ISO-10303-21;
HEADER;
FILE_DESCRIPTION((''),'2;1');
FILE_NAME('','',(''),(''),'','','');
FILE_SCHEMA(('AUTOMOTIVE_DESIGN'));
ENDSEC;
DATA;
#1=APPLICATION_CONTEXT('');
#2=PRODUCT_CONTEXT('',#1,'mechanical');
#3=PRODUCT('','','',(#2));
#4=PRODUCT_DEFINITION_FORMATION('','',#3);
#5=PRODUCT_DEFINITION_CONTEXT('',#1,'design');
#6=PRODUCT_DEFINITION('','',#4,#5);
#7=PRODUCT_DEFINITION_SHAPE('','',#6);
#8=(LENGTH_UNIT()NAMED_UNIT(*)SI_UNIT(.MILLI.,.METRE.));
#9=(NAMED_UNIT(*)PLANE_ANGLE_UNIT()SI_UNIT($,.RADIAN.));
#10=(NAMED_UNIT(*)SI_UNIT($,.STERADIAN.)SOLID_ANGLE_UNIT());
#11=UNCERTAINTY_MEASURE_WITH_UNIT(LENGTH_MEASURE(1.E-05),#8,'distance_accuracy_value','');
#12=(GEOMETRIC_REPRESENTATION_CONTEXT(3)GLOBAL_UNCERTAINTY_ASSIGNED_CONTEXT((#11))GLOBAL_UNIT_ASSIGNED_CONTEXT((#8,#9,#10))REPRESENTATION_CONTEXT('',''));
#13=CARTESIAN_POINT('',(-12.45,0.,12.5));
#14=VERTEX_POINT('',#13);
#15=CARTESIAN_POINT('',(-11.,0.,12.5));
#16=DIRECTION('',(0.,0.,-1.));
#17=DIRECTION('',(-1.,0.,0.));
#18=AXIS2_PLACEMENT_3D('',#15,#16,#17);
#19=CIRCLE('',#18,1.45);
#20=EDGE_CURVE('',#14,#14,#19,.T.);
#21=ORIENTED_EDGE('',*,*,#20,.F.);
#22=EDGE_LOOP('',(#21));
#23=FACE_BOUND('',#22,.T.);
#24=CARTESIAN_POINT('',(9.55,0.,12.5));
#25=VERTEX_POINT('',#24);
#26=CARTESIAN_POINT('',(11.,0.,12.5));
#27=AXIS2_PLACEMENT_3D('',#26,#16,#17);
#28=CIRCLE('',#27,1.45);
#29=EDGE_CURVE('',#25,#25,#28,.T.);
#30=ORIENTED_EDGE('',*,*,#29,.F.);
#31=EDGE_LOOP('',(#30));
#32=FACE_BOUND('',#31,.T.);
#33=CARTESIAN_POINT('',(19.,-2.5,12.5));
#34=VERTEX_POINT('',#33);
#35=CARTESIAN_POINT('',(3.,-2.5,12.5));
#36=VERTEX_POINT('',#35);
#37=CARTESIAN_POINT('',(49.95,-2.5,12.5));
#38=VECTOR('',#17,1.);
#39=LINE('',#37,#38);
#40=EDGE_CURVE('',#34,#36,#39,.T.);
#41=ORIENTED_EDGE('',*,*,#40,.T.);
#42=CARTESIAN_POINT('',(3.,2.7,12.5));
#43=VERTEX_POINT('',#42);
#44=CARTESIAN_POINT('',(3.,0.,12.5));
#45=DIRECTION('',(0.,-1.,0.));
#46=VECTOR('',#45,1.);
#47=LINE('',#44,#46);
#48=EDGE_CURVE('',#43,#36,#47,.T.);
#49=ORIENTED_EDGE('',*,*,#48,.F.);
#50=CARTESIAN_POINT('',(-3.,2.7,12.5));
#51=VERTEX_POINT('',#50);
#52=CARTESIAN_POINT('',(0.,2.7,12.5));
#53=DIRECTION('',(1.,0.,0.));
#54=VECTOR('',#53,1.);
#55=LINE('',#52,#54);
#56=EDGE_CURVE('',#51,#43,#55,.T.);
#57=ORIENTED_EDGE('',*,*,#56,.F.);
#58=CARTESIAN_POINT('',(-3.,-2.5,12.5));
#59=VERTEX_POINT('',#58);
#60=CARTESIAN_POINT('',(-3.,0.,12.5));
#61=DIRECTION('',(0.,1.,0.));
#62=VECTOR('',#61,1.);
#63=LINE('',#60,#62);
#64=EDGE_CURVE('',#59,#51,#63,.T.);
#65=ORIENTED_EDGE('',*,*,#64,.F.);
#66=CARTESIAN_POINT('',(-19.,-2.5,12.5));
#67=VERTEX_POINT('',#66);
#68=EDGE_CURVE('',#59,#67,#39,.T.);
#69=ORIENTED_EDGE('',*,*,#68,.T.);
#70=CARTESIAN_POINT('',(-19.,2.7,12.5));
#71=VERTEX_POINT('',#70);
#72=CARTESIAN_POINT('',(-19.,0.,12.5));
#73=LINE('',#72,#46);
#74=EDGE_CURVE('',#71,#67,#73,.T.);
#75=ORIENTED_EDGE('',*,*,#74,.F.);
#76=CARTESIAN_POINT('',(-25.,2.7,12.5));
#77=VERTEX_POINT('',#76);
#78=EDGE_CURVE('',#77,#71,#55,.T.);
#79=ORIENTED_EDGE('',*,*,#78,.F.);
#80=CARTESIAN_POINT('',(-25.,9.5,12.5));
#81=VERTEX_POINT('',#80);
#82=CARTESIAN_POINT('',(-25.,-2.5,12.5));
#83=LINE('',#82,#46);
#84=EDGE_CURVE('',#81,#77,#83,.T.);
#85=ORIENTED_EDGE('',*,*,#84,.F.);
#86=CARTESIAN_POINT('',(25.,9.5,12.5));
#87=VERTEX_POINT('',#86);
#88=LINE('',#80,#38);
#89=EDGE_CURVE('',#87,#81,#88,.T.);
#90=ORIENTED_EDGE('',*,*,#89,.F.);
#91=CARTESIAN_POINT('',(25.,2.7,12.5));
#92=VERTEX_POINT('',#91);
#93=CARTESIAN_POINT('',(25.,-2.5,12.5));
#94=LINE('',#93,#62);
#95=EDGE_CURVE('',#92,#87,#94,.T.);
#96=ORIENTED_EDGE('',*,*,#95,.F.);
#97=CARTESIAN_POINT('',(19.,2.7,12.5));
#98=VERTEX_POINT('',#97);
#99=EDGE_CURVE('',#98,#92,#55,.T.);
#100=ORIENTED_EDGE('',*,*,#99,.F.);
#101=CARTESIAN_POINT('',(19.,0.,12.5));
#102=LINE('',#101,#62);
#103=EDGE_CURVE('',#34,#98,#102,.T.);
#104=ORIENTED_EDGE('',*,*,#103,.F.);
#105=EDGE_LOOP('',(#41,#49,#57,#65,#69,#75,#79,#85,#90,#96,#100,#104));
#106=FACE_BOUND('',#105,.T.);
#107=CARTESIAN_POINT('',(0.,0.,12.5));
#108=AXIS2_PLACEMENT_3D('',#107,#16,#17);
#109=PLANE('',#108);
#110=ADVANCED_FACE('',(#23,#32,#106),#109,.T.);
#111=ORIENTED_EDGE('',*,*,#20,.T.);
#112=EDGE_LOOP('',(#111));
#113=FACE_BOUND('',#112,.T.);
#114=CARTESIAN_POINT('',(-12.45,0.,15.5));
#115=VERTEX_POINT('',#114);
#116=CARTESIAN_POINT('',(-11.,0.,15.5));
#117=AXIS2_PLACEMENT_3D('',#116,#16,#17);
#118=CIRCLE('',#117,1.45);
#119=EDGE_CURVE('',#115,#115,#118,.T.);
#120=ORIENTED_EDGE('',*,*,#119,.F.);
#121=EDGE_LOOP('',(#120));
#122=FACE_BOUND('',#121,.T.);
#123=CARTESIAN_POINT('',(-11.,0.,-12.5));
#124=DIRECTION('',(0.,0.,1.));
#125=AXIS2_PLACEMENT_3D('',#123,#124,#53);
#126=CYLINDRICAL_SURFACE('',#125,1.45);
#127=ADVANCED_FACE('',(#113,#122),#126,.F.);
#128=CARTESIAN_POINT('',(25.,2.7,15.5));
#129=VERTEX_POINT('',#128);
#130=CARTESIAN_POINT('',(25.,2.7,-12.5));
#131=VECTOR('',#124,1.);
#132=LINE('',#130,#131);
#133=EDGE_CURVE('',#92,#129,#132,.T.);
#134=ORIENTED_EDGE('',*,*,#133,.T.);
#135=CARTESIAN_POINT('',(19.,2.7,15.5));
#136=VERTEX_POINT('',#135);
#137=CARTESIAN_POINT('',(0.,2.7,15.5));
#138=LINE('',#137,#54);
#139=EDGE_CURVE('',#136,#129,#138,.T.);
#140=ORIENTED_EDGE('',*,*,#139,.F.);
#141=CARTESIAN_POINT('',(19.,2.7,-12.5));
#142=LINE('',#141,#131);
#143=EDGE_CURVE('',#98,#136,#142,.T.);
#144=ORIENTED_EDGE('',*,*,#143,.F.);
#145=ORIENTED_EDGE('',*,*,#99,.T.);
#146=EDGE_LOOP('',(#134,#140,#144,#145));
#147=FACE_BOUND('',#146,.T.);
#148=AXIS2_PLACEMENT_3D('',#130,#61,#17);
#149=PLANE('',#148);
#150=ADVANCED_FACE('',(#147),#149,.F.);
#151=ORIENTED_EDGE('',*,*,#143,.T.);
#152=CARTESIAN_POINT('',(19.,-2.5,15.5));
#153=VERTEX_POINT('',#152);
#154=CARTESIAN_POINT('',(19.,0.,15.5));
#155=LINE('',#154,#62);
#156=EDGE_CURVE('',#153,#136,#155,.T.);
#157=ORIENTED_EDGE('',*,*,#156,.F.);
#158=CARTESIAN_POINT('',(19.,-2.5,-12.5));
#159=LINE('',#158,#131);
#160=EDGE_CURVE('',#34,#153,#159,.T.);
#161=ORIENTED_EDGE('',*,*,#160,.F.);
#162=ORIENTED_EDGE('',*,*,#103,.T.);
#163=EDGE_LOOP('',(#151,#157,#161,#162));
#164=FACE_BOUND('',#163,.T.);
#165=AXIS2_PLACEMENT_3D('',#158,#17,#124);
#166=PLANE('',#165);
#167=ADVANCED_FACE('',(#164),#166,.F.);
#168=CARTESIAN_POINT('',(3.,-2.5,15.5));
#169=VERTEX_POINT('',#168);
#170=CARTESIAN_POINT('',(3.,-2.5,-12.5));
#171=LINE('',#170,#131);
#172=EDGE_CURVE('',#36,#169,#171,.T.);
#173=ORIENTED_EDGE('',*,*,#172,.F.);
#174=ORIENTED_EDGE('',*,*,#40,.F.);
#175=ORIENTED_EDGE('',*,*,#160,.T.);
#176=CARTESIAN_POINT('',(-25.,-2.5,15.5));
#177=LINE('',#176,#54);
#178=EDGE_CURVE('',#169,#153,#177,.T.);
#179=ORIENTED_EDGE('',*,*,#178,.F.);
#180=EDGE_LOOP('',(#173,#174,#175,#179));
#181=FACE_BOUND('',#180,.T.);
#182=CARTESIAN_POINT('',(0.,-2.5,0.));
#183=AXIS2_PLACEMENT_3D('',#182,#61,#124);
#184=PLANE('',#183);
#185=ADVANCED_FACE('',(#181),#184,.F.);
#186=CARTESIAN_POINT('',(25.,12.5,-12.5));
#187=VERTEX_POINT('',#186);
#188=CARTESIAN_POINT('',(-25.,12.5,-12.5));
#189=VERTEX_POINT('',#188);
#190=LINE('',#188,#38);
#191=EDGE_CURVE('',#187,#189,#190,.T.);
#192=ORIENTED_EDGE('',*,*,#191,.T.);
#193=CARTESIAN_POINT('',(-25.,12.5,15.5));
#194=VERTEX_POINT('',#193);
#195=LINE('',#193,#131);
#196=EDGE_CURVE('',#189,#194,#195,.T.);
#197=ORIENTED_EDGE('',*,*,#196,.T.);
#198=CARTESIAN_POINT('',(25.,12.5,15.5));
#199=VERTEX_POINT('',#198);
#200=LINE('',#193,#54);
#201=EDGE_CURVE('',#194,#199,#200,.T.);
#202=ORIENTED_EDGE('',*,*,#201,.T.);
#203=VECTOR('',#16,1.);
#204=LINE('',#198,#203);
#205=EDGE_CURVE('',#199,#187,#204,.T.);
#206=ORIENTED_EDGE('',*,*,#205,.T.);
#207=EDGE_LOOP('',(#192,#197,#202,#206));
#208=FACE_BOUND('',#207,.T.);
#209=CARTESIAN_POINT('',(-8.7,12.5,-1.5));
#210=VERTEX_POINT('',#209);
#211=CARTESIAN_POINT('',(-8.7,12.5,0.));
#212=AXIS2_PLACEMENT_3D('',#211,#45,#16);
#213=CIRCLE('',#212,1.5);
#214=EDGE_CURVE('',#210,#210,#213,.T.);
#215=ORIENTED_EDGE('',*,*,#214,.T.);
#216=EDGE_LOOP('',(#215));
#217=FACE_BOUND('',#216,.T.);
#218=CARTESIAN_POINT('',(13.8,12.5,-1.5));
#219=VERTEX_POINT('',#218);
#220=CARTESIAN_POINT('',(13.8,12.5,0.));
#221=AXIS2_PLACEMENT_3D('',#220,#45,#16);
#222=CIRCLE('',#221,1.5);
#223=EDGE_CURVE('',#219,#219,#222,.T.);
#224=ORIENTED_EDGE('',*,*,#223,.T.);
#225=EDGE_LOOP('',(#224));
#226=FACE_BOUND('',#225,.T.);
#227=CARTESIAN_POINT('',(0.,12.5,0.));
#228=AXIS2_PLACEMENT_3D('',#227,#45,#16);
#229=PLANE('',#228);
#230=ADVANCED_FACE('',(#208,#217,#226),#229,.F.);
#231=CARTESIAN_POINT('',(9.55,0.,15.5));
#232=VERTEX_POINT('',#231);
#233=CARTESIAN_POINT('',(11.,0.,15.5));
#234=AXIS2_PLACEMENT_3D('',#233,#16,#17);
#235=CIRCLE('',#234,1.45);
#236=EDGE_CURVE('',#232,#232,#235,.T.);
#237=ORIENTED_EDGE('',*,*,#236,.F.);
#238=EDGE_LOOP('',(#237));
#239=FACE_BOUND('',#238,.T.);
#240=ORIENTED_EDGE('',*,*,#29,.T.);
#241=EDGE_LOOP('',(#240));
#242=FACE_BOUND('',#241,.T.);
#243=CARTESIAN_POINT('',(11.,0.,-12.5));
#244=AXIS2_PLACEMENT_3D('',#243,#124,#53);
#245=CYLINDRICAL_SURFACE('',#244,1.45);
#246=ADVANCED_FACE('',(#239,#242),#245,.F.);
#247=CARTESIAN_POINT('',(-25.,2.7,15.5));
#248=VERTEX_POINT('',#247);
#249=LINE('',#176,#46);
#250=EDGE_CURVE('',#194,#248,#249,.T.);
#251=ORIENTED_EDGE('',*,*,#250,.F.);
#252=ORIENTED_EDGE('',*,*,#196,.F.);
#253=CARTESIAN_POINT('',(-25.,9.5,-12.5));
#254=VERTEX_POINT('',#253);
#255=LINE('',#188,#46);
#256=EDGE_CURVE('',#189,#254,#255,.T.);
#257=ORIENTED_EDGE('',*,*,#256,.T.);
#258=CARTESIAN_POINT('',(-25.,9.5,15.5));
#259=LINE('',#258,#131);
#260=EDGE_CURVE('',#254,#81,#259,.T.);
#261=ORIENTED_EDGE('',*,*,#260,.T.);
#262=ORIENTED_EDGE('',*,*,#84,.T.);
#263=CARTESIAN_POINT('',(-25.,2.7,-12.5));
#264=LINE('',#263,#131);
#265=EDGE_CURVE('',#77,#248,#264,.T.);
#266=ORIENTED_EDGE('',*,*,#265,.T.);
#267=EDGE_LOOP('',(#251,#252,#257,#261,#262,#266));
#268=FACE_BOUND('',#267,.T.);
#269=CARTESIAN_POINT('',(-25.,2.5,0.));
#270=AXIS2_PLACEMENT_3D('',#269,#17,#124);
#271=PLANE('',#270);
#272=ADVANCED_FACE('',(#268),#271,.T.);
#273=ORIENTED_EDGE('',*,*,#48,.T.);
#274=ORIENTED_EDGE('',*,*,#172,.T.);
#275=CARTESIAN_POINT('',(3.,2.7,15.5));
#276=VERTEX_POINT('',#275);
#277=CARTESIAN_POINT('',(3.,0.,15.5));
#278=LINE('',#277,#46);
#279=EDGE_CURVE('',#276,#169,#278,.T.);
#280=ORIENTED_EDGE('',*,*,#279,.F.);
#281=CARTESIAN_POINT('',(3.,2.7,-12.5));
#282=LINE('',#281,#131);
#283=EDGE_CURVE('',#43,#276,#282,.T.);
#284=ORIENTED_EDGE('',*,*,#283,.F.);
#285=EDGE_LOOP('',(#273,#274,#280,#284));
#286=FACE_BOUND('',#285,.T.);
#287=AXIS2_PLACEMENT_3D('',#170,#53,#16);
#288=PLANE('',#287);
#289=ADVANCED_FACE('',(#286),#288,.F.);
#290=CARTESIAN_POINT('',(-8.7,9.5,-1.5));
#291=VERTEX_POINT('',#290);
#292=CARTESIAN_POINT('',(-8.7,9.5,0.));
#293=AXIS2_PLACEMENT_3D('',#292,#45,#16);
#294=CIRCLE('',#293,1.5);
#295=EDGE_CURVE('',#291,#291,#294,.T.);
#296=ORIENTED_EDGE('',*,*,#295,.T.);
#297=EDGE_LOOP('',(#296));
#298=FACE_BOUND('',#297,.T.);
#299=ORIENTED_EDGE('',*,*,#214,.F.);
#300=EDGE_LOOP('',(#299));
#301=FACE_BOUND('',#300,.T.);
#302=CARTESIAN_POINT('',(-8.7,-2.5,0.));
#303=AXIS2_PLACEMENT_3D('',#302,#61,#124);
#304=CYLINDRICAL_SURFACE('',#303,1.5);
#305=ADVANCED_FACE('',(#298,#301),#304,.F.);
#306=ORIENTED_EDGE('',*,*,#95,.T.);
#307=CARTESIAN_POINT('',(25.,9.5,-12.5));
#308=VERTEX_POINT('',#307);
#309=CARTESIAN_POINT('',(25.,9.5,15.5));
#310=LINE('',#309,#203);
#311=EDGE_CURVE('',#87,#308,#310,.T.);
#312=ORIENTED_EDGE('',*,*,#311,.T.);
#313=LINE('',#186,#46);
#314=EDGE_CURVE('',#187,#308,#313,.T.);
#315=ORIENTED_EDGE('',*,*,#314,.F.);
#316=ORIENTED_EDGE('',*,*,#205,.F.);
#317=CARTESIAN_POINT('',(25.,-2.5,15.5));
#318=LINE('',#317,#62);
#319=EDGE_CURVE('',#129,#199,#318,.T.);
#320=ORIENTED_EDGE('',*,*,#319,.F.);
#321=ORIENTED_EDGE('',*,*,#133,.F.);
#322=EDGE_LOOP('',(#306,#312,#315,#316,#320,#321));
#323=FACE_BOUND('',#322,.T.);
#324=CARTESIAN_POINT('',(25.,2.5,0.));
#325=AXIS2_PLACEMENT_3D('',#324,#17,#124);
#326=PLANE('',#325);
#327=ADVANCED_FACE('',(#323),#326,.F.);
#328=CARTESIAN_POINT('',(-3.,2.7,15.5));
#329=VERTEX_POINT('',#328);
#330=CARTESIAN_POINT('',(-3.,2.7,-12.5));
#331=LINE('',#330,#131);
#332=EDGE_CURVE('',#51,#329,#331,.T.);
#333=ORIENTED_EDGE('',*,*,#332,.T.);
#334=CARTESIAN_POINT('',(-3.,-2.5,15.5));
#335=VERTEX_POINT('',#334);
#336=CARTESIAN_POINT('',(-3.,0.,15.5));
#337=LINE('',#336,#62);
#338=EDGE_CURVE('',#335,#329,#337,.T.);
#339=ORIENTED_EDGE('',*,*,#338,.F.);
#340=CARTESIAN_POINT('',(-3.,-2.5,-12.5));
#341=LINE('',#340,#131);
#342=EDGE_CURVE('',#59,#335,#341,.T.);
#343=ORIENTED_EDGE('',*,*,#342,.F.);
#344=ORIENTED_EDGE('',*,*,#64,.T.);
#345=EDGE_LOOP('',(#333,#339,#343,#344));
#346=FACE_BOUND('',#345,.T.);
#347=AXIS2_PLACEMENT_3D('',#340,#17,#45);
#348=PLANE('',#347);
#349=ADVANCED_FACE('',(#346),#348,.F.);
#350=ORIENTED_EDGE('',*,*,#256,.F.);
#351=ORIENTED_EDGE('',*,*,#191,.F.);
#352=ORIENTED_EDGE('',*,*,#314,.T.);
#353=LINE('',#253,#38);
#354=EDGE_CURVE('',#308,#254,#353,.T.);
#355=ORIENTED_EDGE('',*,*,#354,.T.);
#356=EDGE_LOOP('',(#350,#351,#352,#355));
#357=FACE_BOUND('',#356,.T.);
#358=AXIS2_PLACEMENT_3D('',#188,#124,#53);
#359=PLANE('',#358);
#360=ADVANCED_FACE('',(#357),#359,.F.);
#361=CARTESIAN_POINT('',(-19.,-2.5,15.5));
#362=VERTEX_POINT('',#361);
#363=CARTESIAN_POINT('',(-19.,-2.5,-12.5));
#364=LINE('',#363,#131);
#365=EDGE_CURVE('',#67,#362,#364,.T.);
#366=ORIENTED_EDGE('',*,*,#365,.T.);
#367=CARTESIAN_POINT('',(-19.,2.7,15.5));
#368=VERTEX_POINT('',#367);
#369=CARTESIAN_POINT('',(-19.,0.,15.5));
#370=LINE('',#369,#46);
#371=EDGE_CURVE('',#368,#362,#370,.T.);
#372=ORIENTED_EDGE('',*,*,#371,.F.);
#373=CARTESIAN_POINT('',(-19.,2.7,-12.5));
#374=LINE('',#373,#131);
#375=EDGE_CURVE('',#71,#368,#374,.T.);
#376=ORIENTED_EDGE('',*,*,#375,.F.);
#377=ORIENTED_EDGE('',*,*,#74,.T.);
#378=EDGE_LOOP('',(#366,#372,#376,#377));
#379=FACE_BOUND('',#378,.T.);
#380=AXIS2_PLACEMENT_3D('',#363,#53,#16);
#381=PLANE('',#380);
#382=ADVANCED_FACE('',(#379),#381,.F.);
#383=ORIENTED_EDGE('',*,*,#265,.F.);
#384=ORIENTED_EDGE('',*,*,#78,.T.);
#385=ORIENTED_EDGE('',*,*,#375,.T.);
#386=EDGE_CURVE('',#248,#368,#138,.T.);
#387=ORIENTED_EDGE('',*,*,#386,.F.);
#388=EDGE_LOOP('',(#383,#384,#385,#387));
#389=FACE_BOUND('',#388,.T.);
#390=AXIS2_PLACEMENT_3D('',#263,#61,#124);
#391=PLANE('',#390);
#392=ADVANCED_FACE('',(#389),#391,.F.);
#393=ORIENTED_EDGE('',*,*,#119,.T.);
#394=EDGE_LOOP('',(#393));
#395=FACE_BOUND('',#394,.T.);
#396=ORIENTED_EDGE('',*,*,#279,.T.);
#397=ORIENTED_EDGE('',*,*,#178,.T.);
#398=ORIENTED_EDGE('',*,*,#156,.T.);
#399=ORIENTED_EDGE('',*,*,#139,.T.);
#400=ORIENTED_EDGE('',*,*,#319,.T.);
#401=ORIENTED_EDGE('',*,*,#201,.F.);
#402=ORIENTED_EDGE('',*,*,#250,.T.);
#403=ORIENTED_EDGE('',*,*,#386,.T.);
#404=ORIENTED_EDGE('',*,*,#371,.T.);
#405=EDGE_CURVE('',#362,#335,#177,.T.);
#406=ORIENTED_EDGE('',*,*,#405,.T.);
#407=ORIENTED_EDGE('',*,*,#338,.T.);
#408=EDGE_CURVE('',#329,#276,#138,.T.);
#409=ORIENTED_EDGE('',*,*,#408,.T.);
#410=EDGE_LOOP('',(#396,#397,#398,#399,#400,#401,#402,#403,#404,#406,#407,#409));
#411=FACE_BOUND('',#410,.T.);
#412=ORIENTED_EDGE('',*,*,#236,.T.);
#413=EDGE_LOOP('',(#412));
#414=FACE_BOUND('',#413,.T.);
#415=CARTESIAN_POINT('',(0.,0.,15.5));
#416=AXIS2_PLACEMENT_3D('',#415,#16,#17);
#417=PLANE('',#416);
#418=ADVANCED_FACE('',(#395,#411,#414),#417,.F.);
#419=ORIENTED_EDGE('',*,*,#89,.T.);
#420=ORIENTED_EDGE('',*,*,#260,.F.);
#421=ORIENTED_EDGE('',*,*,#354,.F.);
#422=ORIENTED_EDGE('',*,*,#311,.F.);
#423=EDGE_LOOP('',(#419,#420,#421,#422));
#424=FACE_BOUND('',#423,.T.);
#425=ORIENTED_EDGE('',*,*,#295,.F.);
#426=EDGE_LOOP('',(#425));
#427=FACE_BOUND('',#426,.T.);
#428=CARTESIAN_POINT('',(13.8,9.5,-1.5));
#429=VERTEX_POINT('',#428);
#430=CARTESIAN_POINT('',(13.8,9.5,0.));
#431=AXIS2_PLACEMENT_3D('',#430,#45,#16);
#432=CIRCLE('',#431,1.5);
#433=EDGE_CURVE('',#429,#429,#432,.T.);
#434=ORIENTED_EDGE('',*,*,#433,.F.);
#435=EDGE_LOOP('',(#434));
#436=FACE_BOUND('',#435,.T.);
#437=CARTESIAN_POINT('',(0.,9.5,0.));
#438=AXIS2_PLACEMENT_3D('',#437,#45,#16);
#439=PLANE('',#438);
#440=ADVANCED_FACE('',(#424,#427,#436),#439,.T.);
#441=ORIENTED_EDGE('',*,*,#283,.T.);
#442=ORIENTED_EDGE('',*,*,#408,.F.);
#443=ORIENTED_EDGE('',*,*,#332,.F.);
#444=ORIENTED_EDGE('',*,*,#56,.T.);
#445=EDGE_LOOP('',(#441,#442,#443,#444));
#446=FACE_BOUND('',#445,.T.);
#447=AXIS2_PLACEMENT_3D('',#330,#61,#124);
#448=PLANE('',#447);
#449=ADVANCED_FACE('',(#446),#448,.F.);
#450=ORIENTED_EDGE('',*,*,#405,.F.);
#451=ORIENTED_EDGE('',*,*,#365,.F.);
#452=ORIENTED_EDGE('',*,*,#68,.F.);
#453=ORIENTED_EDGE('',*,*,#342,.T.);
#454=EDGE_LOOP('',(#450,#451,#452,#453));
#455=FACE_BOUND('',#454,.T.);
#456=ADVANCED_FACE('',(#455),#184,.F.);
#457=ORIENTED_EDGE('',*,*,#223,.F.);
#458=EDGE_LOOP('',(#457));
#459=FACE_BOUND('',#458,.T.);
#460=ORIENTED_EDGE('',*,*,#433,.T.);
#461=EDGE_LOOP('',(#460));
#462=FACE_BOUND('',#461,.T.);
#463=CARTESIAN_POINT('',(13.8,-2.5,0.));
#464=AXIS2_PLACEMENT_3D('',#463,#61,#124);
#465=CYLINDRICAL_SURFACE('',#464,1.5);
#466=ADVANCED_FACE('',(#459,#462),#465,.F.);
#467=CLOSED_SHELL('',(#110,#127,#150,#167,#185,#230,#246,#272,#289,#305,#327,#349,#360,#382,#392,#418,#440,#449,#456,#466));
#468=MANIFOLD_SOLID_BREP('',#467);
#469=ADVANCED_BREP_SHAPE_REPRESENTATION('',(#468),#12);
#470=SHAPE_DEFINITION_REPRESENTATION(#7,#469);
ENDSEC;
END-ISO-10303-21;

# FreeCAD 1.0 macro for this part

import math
import FreeCAD as App
import Part
import Sketcher
Q = App.Units.Quantity


def add_polygon(sketch, points):
    """Adds a closed chain of lines whose ends are joined by coincident constraints."""
    first, n = sketch.GeometryCount, len(points)
    for a, b in zip(points, points[1:] + points[:1]):
        sketch.addGeometry(Part.LineSegment(App.Vector(*a, 0), App.Vector(*b, 0)), False)
    for i in range(n):
        sketch.addConstraint(Sketcher.Constraint("Coincident", first + i, 2, first + (i + 1) % n, 1))

doc = App.newDocument("Part")
body = doc.addObject("PartDesign::Body", "Body")

sketch1 = body.newObject("Sketcher::SketchObject", "Sketch")
sketch1.AttachmentSupport = (doc.getObject("XZ_Plane"), [""])
sketch1.MapMode = "FlatFace"
add_polygon(sketch1, [(-25, -12.5), (-25, 12.5), (25, 12.5), (25, -12.5)])
sketch1.addGeometry(Part.Circle(App.Vector(-11.2, 0, 0), App.Vector(0, 0, 1), 1.3), False)
sketch1.addGeometry(Part.Circle(App.Vector(11.2, 0, 0), App.Vector(0, 0, 1), 4.5), False)
sketch1.addConstraint(Sketcher.Constraint("Vertical", 0))
sketch1.addConstraint(Sketcher.Constraint("Horizontal", 1))
sketch1.addConstraint(Sketcher.Constraint("Vertical", 2))
sketch1.addConstraint(Sketcher.Constraint("Horizontal", 3))
sketch1.addConstraint(Sketcher.Constraint("Symmetric", 4, 3, 5, 3, -1, 1))
sketch1.addConstraint(Sketcher.Constraint("Symmetric", 0, 2, 2, 2, -1, 1))
sketch1.addConstraint(Sketcher.Constraint("PointOnObject", 4, 3, -1))
sketch1.addConstraint(Sketcher.Constraint("Diameter", 5, Q("9 mm")))
sketch1.addConstraint(Sketcher.Constraint("Diameter", 4, Q("2.6 mm")))
sketch1.addConstraint(Sketcher.Constraint("DistanceX", 1, 1, 1, 2, Q("50 mm")))
sketch1.addConstraint(Sketcher.Constraint("DistanceY", 0, 1, 0, 2, Q("25 mm")))
sketch1.addConstraint(Sketcher.Constraint("DistanceX", 4, 3, 5, 3, Q("22.5 mm")))
pad1 = body.newObject("PartDesign::Pad", "Pad")
pad1.Profile = sketch1
pad1.Length = 5
pad1.Midplane = True

sketch2 = body.newObject("Sketcher::SketchObject", "Sketch001")
sketch2.AttachmentSupport = (doc.getObject("XY_Plane"), [""])
sketch2.MapMode = "FlatFace"
sketch2.AttachmentOffset = App.Placement(App.Vector(0, 0, 12.5), App.Rotation())
add_polygon(sketch2, [(-25, 10), (-25, -2), (25, -2), (25, 10)])
sketch2.addConstraint(Sketcher.Constraint("Vertical", 0))
sketch2.addConstraint(Sketcher.Constraint("Horizontal", 1))
sketch2.addConstraint(Sketcher.Constraint("Vertical", 2))
sketch2.addConstraint(Sketcher.Constraint("Horizontal", 3))
sketch2.addConstraint(Sketcher.Constraint("DistanceX", 1, 1, 1, 2, Q("50 mm")))
sketch2.addConstraint(Sketcher.Constraint("DistanceY", 0, 2, 0, 1, Q("12 mm")))
sketch2.addConstraint(Sketcher.Constraint("DistanceX", 0, 2, -1, 1, Q("25 mm")))
sketch2.addConstraint(Sketcher.Constraint("DistanceY", 0, 2, -1, 1, Q("2.5 mm")))
pad2 = body.newObject("PartDesign::Pad", "Pad001")
pad2.Profile = sketch2
pad2.Length = 3

sketch3 = body.newObject("Sketcher::SketchObject", "Sketch002")
sketch3.AttachmentSupport = (doc.getObject("XZ_Plane"), [""])
sketch3.MapMode = "FlatFace"
sketch3.AttachmentOffset = App.Placement(App.Vector(0, 0, -9.5), App.Rotation())
add_polygon(sketch3, [(-25, -12), (-25, 16), (25, 16), (25, -12)])
sketch3.addConstraint(Sketcher.Constraint("Vertical", 0))
sketch3.addConstraint(Sketcher.Constraint("Horizontal", 1))
sketch3.addConstraint(Sketcher.Constraint("Vertical", 2))
sketch3.addConstraint(Sketcher.Constraint("Horizontal", 3))
sketch3.addConstraint(Sketcher.Constraint("DistanceX", 1, 1, 1, 2, Q("50 mm")))
sketch3.addConstraint(Sketcher.Constraint("DistanceY", 0, 1, 0, 2, Q("28 mm")))
sketch3.addConstraint(Sketcher.Constraint("DistanceX", 0, 2, -1, 1, Q("25 mm")))
sketch3.addConstraint(Sketcher.Constraint("DistanceY", -1, 1, 0, 2, Q("15.5 mm")))
pad3 = body.newObject("PartDesign::Pad", "Pad002")
pad3.Profile = sketch3
pad3.Length = 3
pad3.Reversed = True

sketch4 = body.newObject("Sketcher::SketchObject", "Sketch003")
sketch4.AttachmentSupport = (doc.getObject("XZ_Plane"), [""])
sketch4.MapMode = "FlatFace"
sketch4.AttachmentOffset = App.Placement(App.Vector(0, 0, -12.5), App.Rotation())
sketch4.addGeometry(Part.Circle(App.Vector(11.2, 0, 0), App.Vector(0, 0, 1), 1.3), False)
sketch4.addGeometry(Part.Circle(App.Vector(-11.2, 0, 0), App.Vector(0, 0, 1), 1.3), False)
sketch4.addConstraint(Sketcher.Constraint("Equal", 0, 1))
sketch4.addConstraint(Sketcher.Constraint("Symmetric", 0, 3, 1, 3, -1, 1))
sketch4.addConstraint(Sketcher.Constraint("PointOnObject", 0, 3, -1))
sketch4.addConstraint(Sketcher.Constraint("Diameter", 0, Q("2.6 mm")))
sketch4.addConstraint(Sketcher.Constraint("DistanceX", 1, 3, 0, 3, Q("22.5 mm")))
pocket1 = body.newObject("PartDesign::Pocket", "Pocket")
pocket1.Profile = sketch4
pocket1.Type = "ThroughAll"
pocket1.Reversed = True

sketch5 = body.newObject("Sketcher::SketchObject", "Sketch004")
sketch5.AttachmentSupport = (doc.getObject("XZ_Plane"), [""])
sketch5.MapMode = "FlatFace"
sketch5.AttachmentOffset = App.Placement(App.Vector(0, 0, 2.5), App.Rotation())
add_polygon(sketch5, [(-5, 16.2), (-5, -16.3), (48, -16.3), (48, 16.2)])
sketch5.addGeometry(Part.Circle(App.Vector(-2.9, -5, 0), App.Vector(0, 0, 1), 1.6), False)
sketch5.addGeometry(Part.Circle(App.Vector(45.8, -5, 0), App.Vector(0, 0, 1), 1.6), False)
sketch5.addGeometry(Part.Circle(App.Vector(-2.9, 4.9, 0), App.Vector(0, 0, 1), 1.6), False)
add_polygon(sketch5, [(42.5, -10.8), (0.5, -10.8), (0.5, 10.7), (42.5, 10.7)])
sketch5.addGeometry(Part.Circle(App.Vector(45.8, 4.9, 0), App.Vector(0, 0, 1), 1.6), False)
sketch5.addConstraint(Sketcher.Constraint("Vertical", 0))
sketch5.addConstraint(Sketcher.Constraint("Horizontal", 1))
sketch5.addConstraint(Sketcher.Constraint("Vertical", 2))
sketch5.addConstraint(Sketcher.Constraint("Horizontal", 3))
sketch5.addConstraint(Sketcher.Constraint("Horizontal", 7))
sketch5.addConstraint(Sketcher.Constraint("Vertical", 8))
sketch5.addConstraint(Sketcher.Constraint("Horizontal", 9))
sketch5.addConstraint(Sketcher.Constraint("Vertical", 10))
sketch5.addConstraint(Sketcher.Constraint("Equal", 4, 5))
sketch5.addConstraint(Sketcher.Constraint("Equal", 5, 6))
sketch5.addConstraint(Sketcher.Constraint("Equal", 6, 11))
sketch5.addConstraint(Sketcher.Constraint("Horizontal", 4, 3, 5, 3))
sketch5.addConstraint(Sketcher.Constraint("Horizontal", 6, 3, 11, 3))
sketch5.addConstraint(Sketcher.Constraint("Vertical", 4, 3, 6, 3))
sketch5.addConstraint(Sketcher.Constraint("Vertical", 5, 3, 11, 3))
sketch5.addConstraint(Sketcher.Constraint("Diameter", 4, Q("3.2 mm")))
sketch5.addConstraint(Sketcher.Constraint("DistanceX", 1, 1, 1, 2, Q("53 mm")))
sketch5.addConstraint(Sketcher.Constraint("DistanceX", 7, 2, 7, 1, Q("42 mm")))
sketch5.addConstraint(Sketcher.Constraint("DistanceY", 0, 2, 0, 1, Q("32.5 mm")))
sketch5.addConstraint(Sketcher.Constraint("DistanceY", 8, 1, 8, 2, Q("21.5 mm")))
sketch5.addConstraint(Sketcher.Constraint("DistanceY", 4, 3, -1, 1, Q("5 mm")))
sketch5.addConstraint(Sketcher.Constraint("DistanceY", 7, 2, 3, 2, Q("27 mm")))
sketch5.addConstraint(Sketcher.Constraint("DistanceY", -1, 1, 6, 3, Q("4.9 mm")))
sketch5.addConstraint(Sketcher.Constraint("DistanceY", 0, 2, -1, 1, Q("16.3 mm")))
sketch5.addConstraint(Sketcher.Constraint("DistanceX", 4, 3, 5, 3, Q("48.6 mm")))
sketch5.addConstraint(Sketcher.Constraint("DistanceX", 0, 2, 4, 3, Q("2.2 mm")))
sketch5.addConstraint(Sketcher.Constraint("DistanceX", 4, 3, 7, 2, Q("3.3 mm")))
sketch5.addConstraint(Sketcher.Constraint("DistanceX", 4, 3, -1, 1, Q("2.85 mm")))
pad4 = body.newObject("PartDesign::Pad", "Pad003")
pad4.Profile = sketch5
pad4.Length = 4

sketch6 = body.newObject("Sketcher::SketchObject", "Sketch005")
sketch6.AttachmentSupport = (doc.getObject("XZ_Plane"), [""])
sketch6.MapMode = "FlatFace"
sketch6.AttachmentOffset = App.Placement(App.Vector(0, 0, 2.5), App.Rotation())
sketch6.addGeometry(Part.Circle(App.Vector(11, 0, 0), App.Vector(0, 0, 1), 8), False)
sketch6.addConstraint(Sketcher.Constraint("PointOnObject", 0, 3, -1))
sketch6.addConstraint(Sketcher.Constraint("Diameter", 0, Q("16 mm")))
sketch6.addConstraint(Sketcher.Constraint("DistanceX", -1, 1, 0, 3, Q("11.25 mm")))
pocket2 = body.newObject("PartDesign::Pocket", "Pocket001")
pocket2.Profile = sketch6
pocket2.Length = 5

sketch7 = body.newObject("Sketcher::SketchObject", "Sketch006")
sketch7.AttachmentSupport = (doc.getObject("XZ_Plane"), [""])
sketch7.MapMode = "FlatFace"
sketch7.AttachmentOffset = App.Placement(App.Vector(0, 0, 2.5), App.Rotation())
add_polygon(sketch7, [(0, 11), (0, -11), (25, -11), (25, 11)])
sketch7.addConstraint(Sketcher.Constraint("Vertical", 0))
sketch7.addConstraint(Sketcher.Constraint("Horizontal", 1))
sketch7.addConstraint(Sketcher.Constraint("Vertical", 2))
sketch7.addConstraint(Sketcher.Constraint("Horizontal", 3))
sketch7.addConstraint(Sketcher.Constraint("DistanceY", 0, 2, 0, 1, Q("21.5 mm")))
sketch7.addConstraint(Sketcher.Constraint("DistanceX", -1, 1, 1, 2, Q("25 mm")))
sketch7.addConstraint(Sketcher.Constraint("DistanceX", 1, 1, 1, 2, Q("24.55 mm")))
sketch7.addConstraint(Sketcher.Constraint("DistanceY", 0, 2, -1, 1, Q("10.8 mm")))
pocket3 = body.newObject("PartDesign::Pocket", "Pocket002")
pocket3.Profile = sketch7
pocket3.Length = 3.8

sketch8 = body.newObject("Sketcher::SketchObject", "Sketch007")
sketch8.AttachmentSupport = (doc.getObject("YZ_Plane"), [""])
sketch8.MapMode = "FlatFace"
sketch8.AttachmentOffset = App.Placement(App.Vector(0, 0, 25), App.Rotation())
add_polygon(sketch8, [(2.5, -12.5), (2.5, 16.2), (-2.5, 16.2), (-2.5, 10.7), (1.3, 10.7), (1.3, -10.8), (-2.5, -10.8), (-2.5, -12.5)])
sketch8.addConstraint(Sketcher.Constraint("Vertical", 0))
sketch8.addConstraint(Sketcher.Constraint("Horizontal", 1))
sketch8.addConstraint(Sketcher.Constraint("Vertical", 2))
sketch8.addConstraint(Sketcher.Constraint("Horizontal", 3))
sketch8.addConstraint(Sketcher.Constraint("Vertical", 4))
sketch8.addConstraint(Sketcher.Constraint("Horizontal", 5))
sketch8.addConstraint(Sketcher.Constraint("Vertical", 6))
sketch8.addConstraint(Sketcher.Constraint("Horizontal", 7))
sketch8.addConstraint(Sketcher.Constraint("Vertical", 2, 2, 5, 2))
sketch8.addConstraint(Sketcher.Constraint("DistanceX", 1, 2, 1, 1, Q("5 mm")))
sketch8.addConstraint(Sketcher.Constraint("DistanceX", 3, 1, 3, 2, Q("3.8 mm")))
sketch8.addConstraint(Sketcher.Constraint("DistanceY", 0, 1, 0, 2, Q("28.7 mm")))
sketch8.addConstraint(Sketcher.Constraint("DistanceY", 2, 2, 2, 1, Q("5.5 mm")))
sketch8.addConstraint(Sketcher.Constraint("DistanceY", 4, 2, 4, 1, Q("21.5 mm")))
sketch8.addConstraint(Sketcher.Constraint("DistanceX", -1, 1, 0, 2, Q("2.5 mm")))
sketch8.addConstraint(Sketcher.Constraint("DistanceY", -1, 1, 0, 2, Q("16.2 mm")))
pad5 = body.newObject("PartDesign::Pad", "Pad004")
pad5.Profile = sketch8
pad5.Length = 22.95

sketch9 = body.newObject("Sketcher::SketchObject", "Sketch008")
sketch9.AttachmentSupport = (doc.getObject("YZ_Plane"), [""])
sketch9.MapMode = "FlatFace"
sketch9.AttachmentOffset = App.Placement(App.Vector(0, 0, 47.95), App.Rotation())
add_polygon(sketch9, [(-2.5, -16.3), (-2.5, -12.5), (2.5, -12.5), (2.5, 16.2), (-6.5, 16.2), (-6.5, -16.3)])
sketch9.addConstraint(Sketcher.Constraint("Vertical", 0))
sketch9.addConstraint(Sketcher.Constraint("Horizontal", 1))
sketch9.addConstraint(Sketcher.Constraint("Vertical", 2))
sketch9.addConstraint(Sketcher.Constraint("Horizontal", 3))
sketch9.addConstraint(Sketcher.Constraint("Vertical", 4))
sketch9.addConstraint(Sketcher.Constraint("Horizontal", 5))
sketch9.addConstraint(Sketcher.Constraint("DistanceX", 1, 1, 1, 2, Q("5 mm")))
sketch9.addConstraint(Sketcher.Constraint("DistanceX", 3, 2, 3, 1, Q("9 mm")))
sketch9.addConstraint(Sketcher.Constraint("DistanceY", 0, 1, 0, 2, Q("3.8 mm")))
sketch9.addConstraint(Sketcher.Constraint("DistanceY", 2, 1, 2, 2, Q("28.7 mm")))
sketch9.addConstraint(Sketcher.Constraint("DistanceX", 0, 2, -1, 1, Q("2.5 mm")))
sketch9.addConstraint(Sketcher.Constraint("DistanceY", 0, 2, -1, 1, Q("12.5 mm")))
pad6 = body.newObject("PartDesign::Pad", "Pad005")
pad6.Profile = sketch9
pad6.Length = 2

sketch10 = body.newObject("Sketcher::SketchObject", "Sketch009")
sketch10.AttachmentSupport = (doc.getObject("XZ_Plane"), [""])
sketch10.MapMode = "FlatFace"
sketch10.AttachmentOffset = App.Placement(App.Vector(0, 0, -1.3), App.Rotation())
sketch10.addGeometry(Part.Circle(App.Vector(-2.9, 4.9, 0), App.Vector(0, 0, 1), 1.6), False)
sketch10.addGeometry(Part.Circle(App.Vector(-2.9, -5, 0), App.Vector(0, 0, 1), 1.6), False)
sketch10.addGeometry(Part.Circle(App.Vector(45.8, 4.9, 0), App.Vector(0, 0, 1), 1.6), False)
sketch10.addGeometry(Part.Circle(App.Vector(45.8, -5, 0), App.Vector(0, 0, 1), 1.6), False)
sketch10.addConstraint(Sketcher.Constraint("Equal", 0, 1))
sketch10.addConstraint(Sketcher.Constraint("Equal", 1, 2))
sketch10.addConstraint(Sketcher.Constraint("Equal", 2, 3))
sketch10.addConstraint(Sketcher.Constraint("Horizontal", 0, 3, 2, 3))
sketch10.addConstraint(Sketcher.Constraint("Horizontal", 1, 3, 3, 3))
sketch10.addConstraint(Sketcher.Constraint("Vertical", 0, 3, 1, 3))
sketch10.addConstraint(Sketcher.Constraint("Vertical", 2, 3, 3, 3))
sketch10.addConstraint(Sketcher.Constraint("Diameter", 0, Q("3.2 mm")))
sketch10.addConstraint(Sketcher.Constraint("DistanceY", 1, 3, -1, 1, Q("5 mm")))
sketch10.addConstraint(Sketcher.Constraint("DistanceY", -1, 1, 0, 3, Q("4.9 mm")))
sketch10.addConstraint(Sketcher.Constraint("DistanceX", 0, 3, 2, 3, Q("48.6 mm")))
sketch10.addConstraint(Sketcher.Constraint("DistanceX", 0, 3, -1, 1, Q("2.85 mm")))
pocket4 = body.newObject("PartDesign::Pocket", "Pocket003")
pocket4.Profile = sketch10
pocket4.Length = 1.2

sketch11 = body.newObject("Sketcher::SketchObject", "Sketch010")
sketch11.AttachmentSupport = (doc.getObject("XZ_Plane"), [""])
sketch11.MapMode = "FlatFace"
sketch11.AttachmentOffset = App.Placement(App.Vector(0, 0, -1.3), App.Rotation())
add_polygon(sketch11, [(43, 10.7), (43, -10.3), (50, -10.3), (50, 10.7)])
sketch11.addGeometry(Part.Circle(App.Vector(45.8, -5, 0), App.Vector(0, 0, 1), 1.6), False)
sketch11.addGeometry(Part.Circle(App.Vector(45.8, 4.9, 0), App.Vector(0, 0, 1), 1.6), False)
sketch11.addConstraint(Sketcher.Constraint("Vertical", 0))
sketch11.addConstraint(Sketcher.Constraint("Horizontal", 1))
sketch11.addConstraint(Sketcher.Constraint("Vertical", 2))
sketch11.addConstraint(Sketcher.Constraint("Horizontal", 3))
sketch11.addConstraint(Sketcher.Constraint("Equal", 4, 5))
sketch11.addConstraint(Sketcher.Constraint("Vertical", 4, 3, 5, 3))
sketch11.addConstraint(Sketcher.Constraint("Diameter", 4, Q("3.2 mm")))
sketch11.addConstraint(Sketcher.Constraint("DistanceX", 1, 1, 1, 2, Q("7 mm")))
sketch11.addConstraint(Sketcher.Constraint("DistanceY", 0, 2, 0, 1, Q("21 mm")))
sketch11.addConstraint(Sketcher.Constraint("DistanceY", 4, 3, -1, 1, Q("5 mm")))
sketch11.addConstraint(Sketcher.Constraint("DistanceY", -1, 1, 5, 3, Q("4.9 mm")))
sketch11.addConstraint(Sketcher.Constraint("DistanceY", 0, 2, -1, 1, Q("10.3 mm")))
sketch11.addConstraint(Sketcher.Constraint("DistanceX", 0, 2, 4, 3, Q("2.8 mm")))
sketch11.addConstraint(Sketcher.Constraint("DistanceX", -1, 1, 4, 3, Q("45.75 mm")))
pad7 = body.newObject("PartDesign::Pad", "Pad006")
pad7.Profile = sketch11
pad7.Length = 7.8

sketch12 = body.newObject("Sketcher::SketchObject", "Sketch011")
sketch12.AttachmentSupport = (doc.getObject("YZ_Plane"), [""])
sketch12.MapMode = "FlatFace"
sketch12.AttachmentOffset = App.Placement(App.Vector(0, 0, 25), App.Rotation())
add_polygon(sketch12, [(2.5, 15.5), (-6.5, 15.5), (-6.5, 16.2), (2.5, 16.2)])
sketch12.addConstraint(Sketcher.Constraint("Horizontal", 0))
sketch12.addConstraint(Sketcher.Constraint("Vertical", 1))
sketch12.addConstraint(Sketcher.Constraint("Horizontal", 2))
sketch12.addConstraint(Sketcher.Constraint("Vertical", 3))
sketch12.addConstraint(Sketcher.Constraint("DistanceX", 0, 2, 0, 1, Q("9 mm")))
sketch12.addConstraint(Sketcher.Constraint("DistanceY", 1, 1, 1, 2, Q("0.7 mm")))
sketch12.addConstraint(Sketcher.Constraint("DistanceX", 0, 2, -1, 1, Q("6.5 mm")))
sketch12.addConstraint(Sketcher.Constraint("DistanceY", -1, 1, 0, 2, Q("15.5 mm")))
pocket5 = body.newObject("PartDesign::Pocket", "Pocket004")
pocket5.Profile = sketch12
pocket5.Type = "ThroughAll"
pocket5.Midplane = True

sketch13 = body.newObject("Sketcher::SketchObject", "Sketch012")
sketch13.AttachmentSupport = (doc.getObject("YZ_Plane"), [""])
sketch13.MapMode = "FlatFace"
sketch13.AttachmentOffset = App.Placement(App.Vector(0, 0, -25), App.Rotation())
add_polygon(sketch13, [(-6.5, 15.5), (-2.5, 15.5), (-2.5, 12.5), (2.5, 12.5), (2.5, -16.3), (-6.5, -16.3)])
sketch13.addConstraint(Sketcher.Constraint("Horizontal", 0))
sketch13.addConstraint(Sketcher.Constraint("Vertical", 1))
sketch13.addConstraint(Sketcher.Constraint("Horizontal", 2))
sketch13.addConstraint(Sketcher.Constraint("Vertical", 3))
sketch13.addConstraint(Sketcher.Constraint("Horizontal", 4))
sketch13.addConstraint(Sketcher.Constraint("Vertical", 5))
sketch13.addConstraint(Sketcher.Constraint("DistanceX", 0, 1, 0, 2, Q("4 mm")))
sketch13.addConstraint(Sketcher.Constraint("DistanceX", 2, 1, 2, 2, Q("5 mm")))
sketch13.addConstraint(Sketcher.Constraint("DistanceY", 1, 2, 1, 1, Q("3 mm")))
sketch13.addConstraint(Sketcher.Constraint("DistanceY", 3, 2, 3, 1, Q("28.8 mm")))
sketch13.addConstraint(Sketcher.Constraint("DistanceX", 0, 2, -1, 1, Q("2.5 mm")))
sketch13.addConstraint(Sketcher.Constraint("DistanceY", -1, 1, 0, 2, Q("15.5 mm")))
pocket6 = body.newObject("PartDesign::Pocket", "Pocket005")
pocket6.Profile = sketch13
pocket6.Type = "ThroughAll"
pocket6.Midplane = True

sketch14 = body.newObject("Sketcher::SketchObject", "Sketch013")
sketch14.AttachmentSupport = (doc.getObject("XZ_Plane"), [""])
sketch14.MapMode = "FlatFace"
sketch14.AttachmentOffset = App.Placement(App.Vector(0, 0, -2.5), App.Rotation())
add_polygon(sketch14, [(25, 12.5), (25, 15.5), (50, 15.5), (50, 12.5)])
sketch14.addConstraint(Sketcher.Constraint("Vertical", 0))
sketch14.addConstraint(Sketcher.Constraint("Horizontal", 1))
sketch14.addConstraint(Sketcher.Constraint("Vertical", 2))
sketch14.addConstraint(Sketcher.Constraint("Horizontal", 3))
sketch14.addConstraint(Sketcher.Constraint("DistanceY", 0, 1, 0, 2, Q("3 mm")))
sketch14.addConstraint(Sketcher.Constraint("DistanceX", -1, 1, 0, 2, Q("25 mm")))
sketch14.addConstraint(Sketcher.Constraint("DistanceX", 1, 1, 1, 2, Q("24.95 mm")))
sketch14.addConstraint(Sketcher.Constraint("DistanceY", -1, 1, 0, 2, Q("15.5 mm")))
pocket7 = body.newObject("PartDesign::Pocket", "Pocket006")
pocket7.Profile = sketch14
pocket7.Type = "ThroughAll"
pocket7.Midplane = True

sketch15 = body.newObject("Sketcher::SketchObject", "Sketch014")
sketch15.AttachmentSupport = (doc.getObject("XY_Plane"), [""])
sketch15.MapMode = "FlatFace"
sketch15.AttachmentOffset = App.Placement(App.Vector(0, 0, 15.5), App.Rotation())
sketch15.addGeometry(Part.Circle(App.Vector(-11, 0, 0), App.Vector(0, 0, 1), 1.4), False)
sketch15.addGeometry(Part.Circle(App.Vector(11, 0, 0), App.Vector(0, 0, 1), 1.4), False)
add_polygon(sketch15, [(-25, 2.7), (-25, -2.5), (-19, -2.5), (-19, 2.7)])
add_polygon(sketch15, [(-3, 2.7), (-3, -2.5), (3, -2.5), (3, 2.7)])
add_polygon(sketch15, [(19, 2.7), (19, -2.5), (25, -2.5), (25, 2.7)])
sketch15.addConstraint(Sketcher.Constraint("Vertical", 2))
sketch15.addConstraint(Sketcher.Constraint("Horizontal", 3))
sketch15.addConstraint(Sketcher.Constraint("Vertical", 4))
sketch15.addConstraint(Sketcher.Constraint("Horizontal", 5))
sketch15.addConstraint(Sketcher.Constraint("Vertical", 6))
sketch15.addConstraint(Sketcher.Constraint("Horizontal", 7))
sketch15.addConstraint(Sketcher.Constraint("Vertical", 8))
sketch15.addConstraint(Sketcher.Constraint("Horizontal", 9))
sketch15.addConstraint(Sketcher.Constraint("Vertical", 10))
sketch15.addConstraint(Sketcher.Constraint("Horizontal", 11))
sketch15.addConstraint(Sketcher.Constraint("Vertical", 12))
sketch15.addConstraint(Sketcher.Constraint("Horizontal", 13))
sketch15.addConstraint(Sketcher.Constraint("Equal", 0, 1))
sketch15.addConstraint(Sketcher.Constraint("Symmetric", 0, 3, 1, 3, -1, 1))
sketch15.addConstraint(Sketcher.Constraint("Symmetric", 3, 2, 10, 2, -2))
sketch15.addConstraint(Sketcher.Constraint("Symmetric", 5, 2, 12, 2, -2))
sketch15.addConstraint(Sketcher.Constraint("PointOnObject", 0, 3, -1))
sketch15.addConstraint(Sketcher.Constraint("Horizontal", 3, 2, 6, 2))
sketch15.addConstraint(Sketcher.Constraint("Horizontal", 5, 2, 8, 2))
sketch15.addConstraint(Sketcher.Constraint("Equal", 5, 7))
sketch15.addConstraint(Sketcher.Constraint("Diameter", 0, Q("2.9 mm")))
sketch15.addConstraint(Sketcher.Constraint("DistanceX", 3, 1, 3, 2, Q("6 mm")))
sketch15.addConstraint(Sketcher.Constraint("DistanceY", 2, 2, 2, 1, Q("5.2 mm")))
sketch15.addConstraint(Sketcher.Constraint("DistanceX", 0, 3, -1, 1, Q("11 mm")))
sketch15.addConstraint(Sketcher.Constraint("DistanceX", 2, 2, -1, 1, Q("25 mm")))
sketch15.addConstraint(Sketcher.Constraint("DistanceX", 6, 2, -1, 1, Q("3 mm")))
sketch15.addConstraint(Sketcher.Constraint("DistanceY", 2, 2, -1, 1, Q("2.5 mm")))
pocket8 = body.newObject("PartDesign::Pocket", "Pocket007")
pocket8.Profile = sketch15
pocket8.Type = "ThroughAll"
pocket8.Midplane = True

sketch16 = body.newObject("Sketcher::SketchObject", "Sketch015")
sketch16.AttachmentSupport = (doc.getObject("XZ_Plane"), [""])
sketch16.MapMode = "FlatFace"
sketch16.AttachmentOffset = App.Placement(App.Vector(0, 0, -12.5), App.Rotation())
sketch16.addGeometry(Part.Circle(App.Vector(-8.7, 0, 0), App.Vector(0, 0, 1), 1.5), False)
sketch16.addConstraint(Sketcher.Constraint("PointOnObject", 0, 3, -1))
sketch16.addConstraint(Sketcher.Constraint("Diameter", 0, Q("3 mm")))
sketch16.addConstraint(Sketcher.Constraint("DistanceX", 0, 3, -1, 1, Q("8.7 mm")))
pocket9 = body.newObject("PartDesign::Pocket", "Pocket008")
pocket9.Profile = sketch16
pocket9.Type = "ThroughAll"
pocket9.Midplane = True

sketch17 = body.newObject("Sketcher::SketchObject", "Sketch016")
sketch17.AttachmentSupport = (doc.getObject("XZ_Plane"), [""])
sketch17.MapMode = "FlatFace"
sketch17.AttachmentOffset = App.Placement(App.Vector(0, 0, -12.5), App.Rotation())
sketch17.addGeometry(Part.ArcOfCircle(Part.Circle(App.Vector(-8.7, 0, 0), App.Vector(0, 0, 1), 1.5), math.radians(157), math.radians(203)), False)
sketch17.addGeometry(Part.ArcOfCircle(Part.Circle(App.Vector(-11.2, 0, 0), App.Vector(0, 0, 1), 1.3), math.radians(26), math.radians(334)), False)
sketch17.addGeometry(Part.Circle(App.Vector(11.2, 0, 0), App.Vector(0, 0, 1), 1.3), False)
sketch17.addConstraint(Sketcher.Constraint("Coincident", 0, 1, 1, 1))
sketch17.addConstraint(Sketcher.Constraint("Coincident", 1, 2, 0, 2))
sketch17.addConstraint(Sketcher.Constraint("Equal", 1, 2))
sketch17.addConstraint(Sketcher.Constraint("Symmetric", 1, 3, 2, 3, -1, 1))
sketch17.addConstraint(Sketcher.Constraint("Symmetric", 0, 1, 1, 2, -1))
sketch17.addConstraint(Sketcher.Constraint("Diameter", 2, Q("2.6 mm")))
sketch17.addConstraint(Sketcher.Constraint("Radius", 0, Q("1.5 mm")))
sketch17.addConstraint(Sketcher.Constraint("DistanceX", 0, 3, -1, 1, Q("8.7 mm")))
sketch17.addConstraint(Sketcher.Constraint("DistanceX", 1, 3, 2, 3, Q("22.5 mm")))
pad8 = body.newObject("PartDesign::Pad", "Pad007")
pad8.Profile = sketch17
pad8.Length = 3

sketch18 = body.newObject("Sketcher::SketchObject", "Sketch017")
sketch18.AttachmentSupport = (doc.getObject("XZ_Plane"), [""])
sketch18.MapMode = "FlatFace"
sketch18.AttachmentOffset = App.Placement(App.Vector(0, 0, -12.5), App.Rotation())
sketch18.addGeometry(Part.Circle(App.Vector(13.8, 0, 0), App.Vector(0, 0, 1), 1.5), False)
sketch18.addConstraint(Sketcher.Constraint("PointOnObject", 0, 3, -1))
sketch18.addConstraint(Sketcher.Constraint("Diameter", 0, Q("3 mm")))
sketch18.addConstraint(Sketcher.Constraint("DistanceX", -1, 1, 0, 3, Q("13.8 mm")))
pocket10 = body.newObject("PartDesign::Pocket", "Pocket009")
pocket10.Profile = sketch18
pocket10.Type = "ThroughAll"
pocket10.Midplane = True

doc.recompute()
